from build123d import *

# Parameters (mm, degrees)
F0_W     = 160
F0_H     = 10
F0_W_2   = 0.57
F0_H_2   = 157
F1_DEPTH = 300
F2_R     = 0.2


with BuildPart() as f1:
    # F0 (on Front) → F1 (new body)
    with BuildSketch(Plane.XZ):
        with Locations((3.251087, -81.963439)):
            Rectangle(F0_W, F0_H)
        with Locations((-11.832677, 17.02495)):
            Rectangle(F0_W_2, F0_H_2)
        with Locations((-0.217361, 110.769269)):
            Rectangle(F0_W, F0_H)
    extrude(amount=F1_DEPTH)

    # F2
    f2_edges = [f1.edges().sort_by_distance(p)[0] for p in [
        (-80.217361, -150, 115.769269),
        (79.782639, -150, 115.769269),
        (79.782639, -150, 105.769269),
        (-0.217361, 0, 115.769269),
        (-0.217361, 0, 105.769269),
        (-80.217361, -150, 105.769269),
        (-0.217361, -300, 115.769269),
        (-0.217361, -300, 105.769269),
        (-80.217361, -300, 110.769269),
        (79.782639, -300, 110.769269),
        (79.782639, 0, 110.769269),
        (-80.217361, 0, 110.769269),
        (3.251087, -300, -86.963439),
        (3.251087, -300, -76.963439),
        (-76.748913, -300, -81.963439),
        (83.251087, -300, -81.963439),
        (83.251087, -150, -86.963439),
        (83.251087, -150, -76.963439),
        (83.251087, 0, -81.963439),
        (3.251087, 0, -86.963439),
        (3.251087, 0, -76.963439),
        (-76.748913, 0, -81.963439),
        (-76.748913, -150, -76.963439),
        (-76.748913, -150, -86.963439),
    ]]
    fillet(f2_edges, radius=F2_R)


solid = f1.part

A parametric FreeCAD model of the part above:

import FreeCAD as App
import Part
import Sketcher
from FreeCAD import Vector
Q = App.Units.Quantity


def edges_at(feature, points):
    """Names of the edges that pass closest to the given points."""
    edges = feature.Shape.Edges
    near = lambda p: min(range(len(edges)), key=lambda i: edges[i].distToShape(Part.Vertex(*p))[0])
    return sorted({f"Edge{near(p) + 1}" for p in points})

doc = App.newDocument("Part")
body = doc.addObject("PartDesign::Body", "Body")
body.AllowCompound = True

# Sketch on XZ plane
sketch1 = body.newObject("Sketcher::SketchObject", "Sketch")
sketch1.AttachmentSupport = (doc.getObject("XZ_Plane"), [""])
sketch1.MapMode = "FlatFace"
sketch1.addGeometry([
    Part.LineSegment(Vector(-76.7, -77, 0), Vector(-76.7, -87, 0)),  # 0
    Part.LineSegment(Vector(-76.7, -87, 0), Vector(83.3, -87, 0)),  # 1
    Part.LineSegment(Vector(83.3, -87, 0), Vector(83.3, -77, 0)),  # 2
    Part.LineSegment(Vector(83.3, -77, 0), Vector(-76.7, -77, 0)),  # 3
    Part.LineSegment(Vector(-12.1, 95.5, 0), Vector(-12.1, -61.5, 0)),  # 4
    Part.LineSegment(Vector(-12.1, -61.5, 0), Vector(-11.5, -61.5, 0)),  # 5
    Part.LineSegment(Vector(-11.5, -61.5, 0), Vector(-11.5, 95.5, 0)),  # 6
    Part.LineSegment(Vector(-11.5, 95.5, 0), Vector(-12.1, 95.5, 0)),  # 7
    Part.LineSegment(Vector(-80.2, 115.8, 0), Vector(-80.2, 105.8, 0)),  # 8
    Part.LineSegment(Vector(-80.2, 105.8, 0), Vector(79.8, 105.8, 0)),  # 9
    Part.LineSegment(Vector(79.8, 105.8, 0), Vector(79.8, 115.8, 0)),  # 10
    Part.LineSegment(Vector(79.8, 115.8, 0), Vector(-80.2, 115.8, 0)),  # 11
], False)
sketch1.addConstraint([
    Sketcher.Constraint("Coincident", 0, 2, 1, 1),
    Sketcher.Constraint("Coincident", 1, 2, 2, 1),
    Sketcher.Constraint("Coincident", 2, 2, 3, 1),
    Sketcher.Constraint("Coincident", 3, 2, 0, 1),
    Sketcher.Constraint("Coincident", 4, 2, 5, 1),
    Sketcher.Constraint("Coincident", 5, 2, 6, 1),
    Sketcher.Constraint("Coincident", 6, 2, 7, 1),
    Sketcher.Constraint("Coincident", 7, 2, 4, 1),
    Sketcher.Constraint("Coincident", 8, 2, 9, 1),
    Sketcher.Constraint("Coincident", 9, 2, 10, 1),
    Sketcher.Constraint("Coincident", 10, 2, 11, 1),
    Sketcher.Constraint("Coincident", 11, 2, 8, 1),
    Sketcher.Constraint("Vertical", 0),
    Sketcher.Constraint("Horizontal", 1),
    Sketcher.Constraint("Vertical", 2),
    Sketcher.Constraint("Horizontal", 3),
    Sketcher.Constraint("Vertical", 4),
    Sketcher.Constraint("Horizontal", 5),
    Sketcher.Constraint("Vertical", 6),
    Sketcher.Constraint("Horizontal", 7),
    Sketcher.Constraint("Vertical", 8),
    Sketcher.Constraint("Horizontal", 9),
    Sketcher.Constraint("Vertical", 10),
    Sketcher.Constraint("Horizontal", 11),
    Sketcher.Constraint("Equal", 3, 9),
    Sketcher.Constraint("Equal", 2, 8),
    Sketcher.Constraint("DistanceX", 1, 1, 1, 2, Q("160 mm")),
    Sketcher.Constraint("DistanceY", 0, 2, 0, 1, Q("10 mm")),
    Sketcher.Constraint("DistanceY", 4, 2, 4, 1, Q("157 mm")),
    Sketcher.Constraint("DistanceX", 5, 1, 5, 2, Q("0.57 mm")),
    Sketcher.Constraint("DistanceY", 0, 2, -1, 1, Q("86.963439 mm")),
    Sketcher.Constraint("DistanceY", 4, 2, -1, 1, Q("61.47505 mm")),
    Sketcher.Constraint("DistanceX", 8, 2, -1, 1, Q("80.217361 mm")),
    Sketcher.Constraint("DistanceY", -1, 1, 8, 2, Q("105.769269 mm")),
    Sketcher.Constraint("DistanceX", 0, 2, -1, 1, Q("76.748913 mm")),
    Sketcher.Constraint("DistanceX", 4, 2, -1, 1, Q("12.117677 mm")),
])
pad1 = body.newObject("PartDesign::Pad", "Pad")
pad1.Profile = sketch1
pad1.Length = 300
doc.recompute()

fillet = body.newObject("PartDesign::Fillet", "Fillet")
fillet.Base = (pad1, edges_at(pad1, [
    (-80.217, -150, 115.769),
    (79.783, -150, 115.769),
    (79.783, -150, 105.769),
    (-0.217, 0, 115.769),
    (-0.217, 0, 105.769),
    (-80.217, -150, 105.769),
    (-0.217, -300, 115.769),
    (-0.217, -300, 105.769),
    (-80.217, -300, 110.769),
    (79.783, -300, 110.769),
    (79.783, 0, 110.769),
    (-80.217, 0, 110.769),
    (3.251, -300, -86.963),
    (3.251, -300, -76.963),
    (-76.749, -300, -81.963),
    (83.251, -300, -81.963),
    (83.251, -150, -86.963),
    (83.251, -150, -76.963),
    (83.251, 0, -81.963),
    (3.251, 0, -86.963),
    (3.251, 0, -76.963),
    (-76.749, 0, -81.963),
    (-76.749, -150, -76.963),
    (-76.749, -150, -86.963),
]))
fillet.Radius = 0.2

doc.recompute()
